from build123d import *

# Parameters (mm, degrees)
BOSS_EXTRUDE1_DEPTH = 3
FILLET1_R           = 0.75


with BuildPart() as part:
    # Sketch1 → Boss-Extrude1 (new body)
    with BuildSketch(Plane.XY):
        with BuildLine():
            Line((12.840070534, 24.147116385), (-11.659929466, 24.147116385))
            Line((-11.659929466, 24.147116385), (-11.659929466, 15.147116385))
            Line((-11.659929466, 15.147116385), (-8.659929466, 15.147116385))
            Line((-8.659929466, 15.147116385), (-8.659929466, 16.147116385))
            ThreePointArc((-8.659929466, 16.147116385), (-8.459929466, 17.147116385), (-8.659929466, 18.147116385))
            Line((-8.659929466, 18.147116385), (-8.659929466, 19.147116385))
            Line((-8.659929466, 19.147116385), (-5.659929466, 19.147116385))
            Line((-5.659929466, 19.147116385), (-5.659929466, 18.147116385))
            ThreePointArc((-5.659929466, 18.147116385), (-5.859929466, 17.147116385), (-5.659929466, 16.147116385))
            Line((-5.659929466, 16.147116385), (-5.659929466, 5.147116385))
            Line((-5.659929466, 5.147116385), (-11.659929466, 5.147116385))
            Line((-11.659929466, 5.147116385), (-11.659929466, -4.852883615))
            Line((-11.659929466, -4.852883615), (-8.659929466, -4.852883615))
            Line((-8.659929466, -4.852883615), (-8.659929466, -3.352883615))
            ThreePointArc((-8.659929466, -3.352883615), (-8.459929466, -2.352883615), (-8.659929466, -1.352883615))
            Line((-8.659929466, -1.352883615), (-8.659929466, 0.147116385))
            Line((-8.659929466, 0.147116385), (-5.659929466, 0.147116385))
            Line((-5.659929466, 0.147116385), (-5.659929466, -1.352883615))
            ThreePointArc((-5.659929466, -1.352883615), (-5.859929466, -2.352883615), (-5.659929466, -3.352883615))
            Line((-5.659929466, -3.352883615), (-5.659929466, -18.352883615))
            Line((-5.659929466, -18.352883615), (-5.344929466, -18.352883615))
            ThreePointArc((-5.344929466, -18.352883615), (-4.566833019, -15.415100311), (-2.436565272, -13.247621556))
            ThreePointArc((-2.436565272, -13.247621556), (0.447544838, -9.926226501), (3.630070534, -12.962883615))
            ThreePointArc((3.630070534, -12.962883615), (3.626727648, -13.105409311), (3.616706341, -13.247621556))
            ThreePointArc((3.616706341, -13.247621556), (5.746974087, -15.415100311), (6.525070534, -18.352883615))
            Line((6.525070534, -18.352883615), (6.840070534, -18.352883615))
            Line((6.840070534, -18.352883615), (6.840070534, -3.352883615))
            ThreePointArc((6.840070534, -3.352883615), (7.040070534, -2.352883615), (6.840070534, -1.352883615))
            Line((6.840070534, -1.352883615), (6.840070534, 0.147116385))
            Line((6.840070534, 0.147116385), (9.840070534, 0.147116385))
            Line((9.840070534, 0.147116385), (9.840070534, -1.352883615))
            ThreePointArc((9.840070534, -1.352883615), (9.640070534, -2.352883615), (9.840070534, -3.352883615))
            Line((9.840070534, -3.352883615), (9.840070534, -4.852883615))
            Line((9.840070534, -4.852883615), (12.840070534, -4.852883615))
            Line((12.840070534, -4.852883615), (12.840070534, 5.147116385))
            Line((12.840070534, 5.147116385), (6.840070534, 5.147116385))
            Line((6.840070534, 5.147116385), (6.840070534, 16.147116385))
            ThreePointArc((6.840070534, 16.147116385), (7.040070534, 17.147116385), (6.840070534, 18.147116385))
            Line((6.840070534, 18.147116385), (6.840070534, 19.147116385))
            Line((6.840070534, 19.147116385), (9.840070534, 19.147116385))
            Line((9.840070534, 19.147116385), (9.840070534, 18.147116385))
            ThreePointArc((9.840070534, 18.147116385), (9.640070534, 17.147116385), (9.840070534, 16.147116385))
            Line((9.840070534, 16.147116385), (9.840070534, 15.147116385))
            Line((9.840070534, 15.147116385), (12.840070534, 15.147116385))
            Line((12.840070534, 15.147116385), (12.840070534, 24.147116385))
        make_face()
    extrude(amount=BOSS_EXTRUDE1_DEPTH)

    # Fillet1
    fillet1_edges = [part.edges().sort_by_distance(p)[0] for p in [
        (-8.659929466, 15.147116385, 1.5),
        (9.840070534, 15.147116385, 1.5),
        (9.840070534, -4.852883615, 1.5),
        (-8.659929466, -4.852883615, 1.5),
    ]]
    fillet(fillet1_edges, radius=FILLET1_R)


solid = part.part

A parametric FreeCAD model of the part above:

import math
import FreeCAD as App
import Part
import Sketcher


def edges_at(feature, points):
    """Names of the edges that pass closest to the given points."""
    edges = feature.Shape.Edges
    near = lambda p: min(range(len(edges)), key=lambda i: edges[i].distToShape(Part.Vertex(*p))[0])
    return sorted({f"Edge{near(p) + 1}" for p in points})

doc = App.newDocument("Part")
params = doc.addObject("Spreadsheet::Sheet", "Params")
for row, (alias, value) in enumerate([
    ("sketch1_radius", "2.6 mm"),
    ("sketch1_width", "3 mm"),
    ("sketch1_height", "9 mm"),
    ("sketch1_height2", "1 mm"),
    ("sketch1_height3", "11 mm"),
    ("pad1_length", "3 mm"),
    ("fillet_radius", "0.75 mm"),
], start=1):
    params.set(f"A{row}", alias)
    params.set(f"B{row}", "=" + value)
    params.setAlias(f"B{row}", alias)

body = doc.addObject("PartDesign::Body", "Body")

sketch1 = body.newObject("Sketcher::SketchObject", "Sketch")
sketch1.AttachmentSupport = (doc.getObject("XY_Plane"), [""])
sketch1.MapMode = "FlatFace"
sketch1.addGeometry([
    Part.LineSegment(App.Vector(12.84, 24.15, 0), App.Vector(-11.66, 24.15, 0)),
    Part.LineSegment(App.Vector(-11.66, 24.15, 0), App.Vector(-11.66, 15.15, 0)),
    Part.LineSegment(App.Vector(-11.66, 15.15, 0), App.Vector(-8.66, 15.15, 0)),
    Part.LineSegment(App.Vector(-8.66, 15.15, 0), App.Vector(-8.66, 16.15, 0)),
    Part.ArcOfCircle(Part.Circle(App.Vector(-11.06, 17.15, 0), App.Vector(0, 0, 1), 2.6), math.radians(-23), math.radians(23)),
    Part.LineSegment(App.Vector(-8.66, 18.15, 0), App.Vector(-8.66, 19.15, 0)),
    Part.LineSegment(App.Vector(-8.66, 19.15, 0), App.Vector(-5.66, 19.15, 0)),
    Part.LineSegment(App.Vector(-5.66, 19.15, 0), App.Vector(-5.66, 18.15, 0)),
    Part.ArcOfCircle(Part.Circle(App.Vector(-3.26, 17.15, 0), App.Vector(0, 0, 1), 2.6), math.radians(157), math.radians(203)),
    Part.LineSegment(App.Vector(-5.66, 16.15, 0), App.Vector(-5.66, 5.15, 0)),
    Part.LineSegment(App.Vector(-5.66, 5.15, 0), App.Vector(-11.66, 5.15, 0)),
    Part.LineSegment(App.Vector(-11.66, 5.15, 0), App.Vector(-11.66, -4.85, 0)),
    Part.LineSegment(App.Vector(-11.66, -4.85, 0), App.Vector(-8.66, -4.85, 0)),
    Part.LineSegment(App.Vector(-8.66, -4.85, 0), App.Vector(-8.66, -3.35, 0)),
    Part.ArcOfCircle(Part.Circle(App.Vector(-11.06, -2.35, 0), App.Vector(0, 0, 1), 2.6), math.radians(-23), math.radians(23)),
    Part.LineSegment(App.Vector(-8.66, -1.35, 0), App.Vector(-8.66, 0.15, 0)),
    Part.LineSegment(App.Vector(-8.66, 0.15, 0), App.Vector(-5.66, 0.15, 0)),
    Part.LineSegment(App.Vector(-5.66, 0.15, 0), App.Vector(-5.66, -1.35, 0)),
    Part.ArcOfCircle(Part.Circle(App.Vector(-3.26, -2.35, 0), App.Vector(0, 0, 1), 2.6), math.radians(157), math.radians(203)),
    Part.LineSegment(App.Vector(-5.66, -3.35, 0), App.Vector(-5.66, -18.35, 0)),
    Part.LineSegment(App.Vector(-5.66, -18.35, 0), App.Vector(-5.34, -18.35, 0)),
    Part.ArcOfCircle(Part.Circle(App.Vector(0.59, -18.35, 0), App.Vector(0, 0, 1), 5.93), math.radians(121), math.radians(180)),
    Part.ArcOfCircle(Part.Circle(App.Vector(0.59, -12.96, 0), App.Vector(0, 0, 1), 3.04), math.radians(0), math.radians(185)),
    Part.ArcOfCircle(Part.Circle(App.Vector(0.59, -12.96, 0), App.Vector(0, 0, 1), 3.04), math.radians(-5.37), math.radians(0)),
    Part.ArcOfCircle(Part.Circle(App.Vector(0.59, -18.35, 0), App.Vector(0, 0, 1), 5.94), math.radians(0), math.radians(59)),
    Part.LineSegment(App.Vector(6.53, -18.35, 0), App.Vector(6.84, -18.35, 0)),
    Part.LineSegment(App.Vector(6.84, -18.35, 0), App.Vector(6.84, -3.35, 0)),
    Part.ArcOfCircle(Part.Circle(App.Vector(4.44, -2.35, 0), App.Vector(0, 0, 1), 2.6), math.radians(-23), math.radians(23)),
    Part.LineSegment(App.Vector(6.84, -1.35, 0), App.Vector(6.84, 0.15, 0)),
    Part.LineSegment(App.Vector(6.84, 0.15, 0), App.Vector(9.84, 0.15, 0)),
    Part.LineSegment(App.Vector(9.84, 0.15, 0), App.Vector(9.84, -1.35, 0)),
    Part.ArcOfCircle(Part.Circle(App.Vector(12.24, -2.35, 0), App.Vector(0, 0, 1), 2.6), math.radians(157), math.radians(203)),
    Part.LineSegment(App.Vector(9.84, -3.35, 0), App.Vector(9.84, -4.85, 0)),
    Part.LineSegment(App.Vector(9.84, -4.85, 0), App.Vector(12.84, -4.85, 0)),
    Part.LineSegment(App.Vector(12.84, -4.85, 0), App.Vector(12.84, 5.15, 0)),
    Part.LineSegment(App.Vector(12.84, 5.15, 0), App.Vector(6.84, 5.15, 0)),
    Part.LineSegment(App.Vector(6.84, 5.15, 0), App.Vector(6.84, 16.15, 0)),
    Part.ArcOfCircle(Part.Circle(App.Vector(4.44, 17.15, 0), App.Vector(0, 0, 1), 2.6), math.radians(-23), math.radians(23)),
    Part.LineSegment(App.Vector(6.84, 18.15, 0), App.Vector(6.84, 19.15, 0)),
    Part.LineSegment(App.Vector(6.84, 19.15, 0), App.Vector(9.84, 19.15, 0)),
    Part.LineSegment(App.Vector(9.84, 19.15, 0), App.Vector(9.84, 18.15, 0)),
    Part.ArcOfCircle(Part.Circle(App.Vector(12.24, 17.15, 0), App.Vector(0, 0, 1), 2.6), math.radians(157), math.radians(203)),
    Part.LineSegment(App.Vector(9.84, 16.15, 0), App.Vector(9.84, 15.15, 0)),
    Part.LineSegment(App.Vector(9.84, 15.15, 0), App.Vector(12.84, 15.15, 0)),
    Part.LineSegment(App.Vector(12.84, 15.15, 0), App.Vector(12.84, 24.15, 0)),
], False)
sketch1.addConstraint([
    Sketcher.Constraint("Coincident", 0, 2, 1, 1),
    Sketcher.Constraint("Coincident", 1, 2, 2, 1),
    Sketcher.Constraint("Coincident", 2, 2, 3, 1),
    Sketcher.Constraint("Coincident", 3, 2, 4, 1),
    Sketcher.Constraint("Coincident", 4, 2, 5, 1),
    Sketcher.Constraint("Coincident", 5, 2, 6, 1),
    Sketcher.Constraint("Coincident", 6, 2, 7, 1),
    Sketcher.Constraint("Coincident", 7, 2, 8, 1),
    Sketcher.Constraint("Coincident", 8, 2, 9, 1),
    Sketcher.Constraint("Coincident", 9, 2, 10, 1),
    Sketcher.Constraint("Coincident", 10, 2, 11, 1),
    Sketcher.Constraint("Coincident", 11, 2, 12, 1),
    Sketcher.Constraint("Coincident", 12, 2, 13, 1),
    Sketcher.Constraint("Coincident", 13, 2, 14, 1),
    Sketcher.Constraint("Coincident", 14, 2, 15, 1),
    Sketcher.Constraint("Coincident", 15, 2, 16, 1),
    Sketcher.Constraint("Coincident", 16, 2, 17, 1),
    Sketcher.Constraint("Coincident", 17, 2, 18, 1),
    Sketcher.Constraint("Coincident", 18, 2, 19, 1),
    Sketcher.Constraint("Coincident", 19, 2, 20, 1),
    Sketcher.Constraint("Coincident", 20, 2, 21, 2),
    Sketcher.Constraint("Coincident", 21, 1, 22, 2),
    Sketcher.Constraint("Tangent", 22, 1, 23, 2),
    Sketcher.Constraint("Coincident", 23, 1, 24, 2),
    Sketcher.Constraint("Coincident", 24, 1, 25, 1),
    Sketcher.Constraint("Coincident", 25, 2, 26, 1),
    Sketcher.Constraint("Coincident", 26, 2, 27, 1),
    Sketcher.Constraint("Coincident", 27, 2, 28, 1),
    Sketcher.Constraint("Coincident", 28, 2, 29, 1),
    Sketcher.Constraint("Coincident", 29, 2, 30, 1),
    Sketcher.Constraint("Coincident", 30, 2, 31, 1),
    Sketcher.Constraint("Coincident", 31, 2, 32, 1),
    Sketcher.Constraint("Coincident", 32, 2, 33, 1),
    Sketcher.Constraint("Coincident", 33, 2, 34, 1),
    Sketcher.Constraint("Coincident", 34, 2, 35, 1),
    Sketcher.Constraint("Coincident", 35, 2, 36, 1),
    Sketcher.Constraint("Coincident", 36, 2, 37, 1),
    Sketcher.Constraint("Coincident", 37, 2, 38, 1),
    Sketcher.Constraint("Coincident", 38, 2, 39, 1),
    Sketcher.Constraint("Coincident", 39, 2, 40, 1),
    Sketcher.Constraint("Coincident", 40, 2, 41, 1),
    Sketcher.Constraint("Coincident", 41, 2, 42, 1),
    Sketcher.Constraint("Coincident", 42, 2, 43, 1),
    Sketcher.Constraint("Coincident", 43, 2, 44, 1),
    Sketcher.Constraint("Coincident", 44, 2, 0, 1),
    Sketcher.Constraint("Horizontal", 0),
    Sketcher.Constraint("Vertical", 1),
    Sketcher.Constraint("Horizontal", 2),
    Sketcher.Constraint("Vertical", 3),
    Sketcher.Constraint("Vertical", 5),
    Sketcher.Constraint("Horizontal", 6),
    Sketcher.Constraint("Vertical", 7),
    Sketcher.Constraint("Vertical", 9),
    Sketcher.Constraint("Horizontal", 10),
    Sketcher.Constraint("Vertical", 11),
    Sketcher.Constraint("Horizontal", 12),
    Sketcher.Constraint("Vertical", 13),
    Sketcher.Constraint("Vertical", 15),
    Sketcher.Constraint("Horizontal", 16),
    Sketcher.Constraint("Vertical", 17),
    Sketcher.Constraint("Vertical", 19),
    Sketcher.Constraint("Horizontal", 20),
    Sketcher.Constraint("Horizontal", 25),
    Sketcher.Constraint("Vertical", 26),
    Sketcher.Constraint("Vertical", 28),
    Sketcher.Constraint("Horizontal", 29),
    Sketcher.Constraint("Vertical", 30),
    Sketcher.Constraint("Vertical", 32),
    Sketcher.Constraint("Horizontal", 33),
    Sketcher.Constraint("Vertical", 34),
    Sketcher.Constraint("Horizontal", 35),
    Sketcher.Constraint("Vertical", 36),
    Sketcher.Constraint("Vertical", 38),
    Sketcher.Constraint("Horizontal", 39),
    Sketcher.Constraint("Vertical", 40),
    Sketcher.Constraint("Vertical", 42),
    Sketcher.Constraint("Horizontal", 43),
    Sketcher.Constraint("Vertical", 44),
    Sketcher.Constraint("Coincident", 24, 3, 21, 3),
    Sketcher.Constraint("Equal", 4, 8),
    Sketcher.Constraint("Equal", 8, 14),
    Sketcher.Constraint("Equal", 14, 18),
    Sketcher.Constraint("Equal", 22, 23),
    Sketcher.Constraint("Equal", 21, 24),
    Sketcher.Constraint("Equal", 18, 27),
    Sketcher.Constraint("Equal", 27, 31),
    Sketcher.Constraint("Equal", 31, 37),
    Sketcher.Constraint("Equal", 37, 41),
    Sketcher.Constraint("Horizontal", 4, 3, 8, 3),
    Sketcher.Constraint("Horizontal", 14, 3, 18, 3),
    Sketcher.Constraint("Horizontal", 18, 3, 27, 3),
    Sketcher.Constraint("Horizontal", 27, 3, 31, 3),
    Sketcher.Constraint("Horizontal", 8, 3, 37, 3),
    Sketcher.Constraint("Horizontal", 37, 3, 41, 3),
    Sketcher.Constraint("Horizontal", 4, 2, 7, 2),
    Sketcher.Constraint("Horizontal", 3, 2, 8, 2),
    Sketcher.Constraint("Horizontal", 14, 2, 17, 2),
    Sketcher.Constraint("Horizontal", 13, 2, 18, 2),
    Sketcher.Constraint("Horizontal", 24, 3, 19, 2),
    Sketcher.Constraint("Horizontal", 23, 3, 22, 1),
    Sketcher.Constraint("Horizontal", 21, 1, 23, 1),
    Sketcher.Constraint("Horizontal", 20, 2, 24, 1),
    Sketcher.Constraint("Horizontal", 18, 2, 26, 2),
    Sketcher.Constraint("Horizontal", 17, 2, 27, 2),
    Sketcher.Constraint("Horizontal", 16, 2, 28, 2),
    Sketcher.Constraint("Horizontal", 27, 2, 30, 2),
    Sketcher.Constraint("Horizontal", 26, 2, 31, 2),
    Sketcher.Constraint("Horizontal", 12, 2, 32, 2),
    Sketcher.Constraint("Horizontal", 10, 2, 34, 2),
    Sketcher.Constraint("Horizontal", 8, 2, 36, 2),
    Sketcher.Constraint("Horizontal", 7, 2, 37, 2),
    Sketcher.Constraint("Horizontal", 6, 2, 38, 2),
    Sketcher.Constraint("Horizontal", 37, 2, 40, 2),
    Sketcher.Constraint("Horizontal", 36, 2, 41, 2),
    Sketcher.Constraint("Horizontal", 2, 2, 42, 2),
    Sketcher.Constraint("Vertical", 4, 3, 14, 3),
    Sketcher.Constraint("Vertical", 8, 3, 18, 3),
    Sketcher.Constraint("Vertical", 27, 3, 37, 3),
    Sketcher.Constraint("Vertical", 31, 3, 41, 3),
    Sketcher.Constraint("Vertical", 3, 2, 4, 2),
    Sketcher.Constraint("Vertical", 1, 2, 10, 2),
    Sketcher.Constraint("Vertical", 5, 2, 12, 2),
    Sketcher.Constraint("Vertical", 13, 2, 14, 2),
    Sketcher.Constraint("Vertical", 34, 2, 43, 2),
    Sketcher.Constraint("Equal", 2, 6),
    Sketcher.Constraint("Equal", 20, 25),
    Sketcher.Constraint("Equal", 16, 29),
    Sketcher.Constraint("Equal", 29, 33),
    Sketcher.Constraint("Equal", 3, 5),
    Sketcher.Constraint("Equal", 13, 15),
    Sketcher.Constraint("Radius", 4, 2.6),
    Sketcher.Constraint("DistanceX", 2, 1, 2, 2, 3.0),
    Sketcher.Constraint("DistanceY", 1, 2, 1, 1, 9.0),
    Sketcher.Constraint("DistanceY", 3, 1, 3, 2, 1.0),
    Sketcher.Constraint("DistanceY", 9, 2, 9, 1, 11.0),
    Sketcher.Constraint("DistanceY", 11, 2, 11, 1, 10.0),
    Sketcher.Constraint("DistanceY", 19, 2, 19, 1, 15.0),
    Sketcher.Constraint("Radius", 22, 3.04),
    Sketcher.Constraint("DistanceX", 0, 2, 0, 1, 24.5),
    Sketcher.Constraint("DistanceY", 13, 1, 13, 2, 1.5),
    Sketcher.Constraint("Radius", 21, 5.935),
    Sketcher.Constraint("DistanceY", 21, 3, 18, 3, 16.0),
    Sketcher.Constraint("DistanceY", 21, 3, 22, 3, 5.39),
    Sketcher.Constraint("DistanceX", 4, 3, -1, 1, 11.059929),
    Sketcher.Constraint("DistanceY", 21, 1, -1, 1, 13.247622),
])
sketch1.setExpression("Constraints[130]", "Params.sketch1_radius")
sketch1.setExpression("Constraints[131]", "Params.sketch1_width")
sketch1.setExpression("Constraints[132]", "Params.sketch1_height")
sketch1.setExpression("Constraints[133]", "Params.sketch1_height2")
sketch1.setExpression("Constraints[134]", "Params.sketch1_height3")
pad1 = body.newObject("PartDesign::Pad", "Pad")
pad1.Profile = sketch1
pad1.setExpression("Length", "Params.pad1_length")
doc.recompute()

fillet = body.newObject("PartDesign::Fillet", "Fillet")
fillet.Base = (pad1, edges_at(pad1, [
    (-8.66, 15.147, 1.5),
    (9.84, 15.147, 1.5),
    (9.84, -4.853, 1.5),
    (-8.66, -4.853, 1.5),
]))
fillet.setExpression("Radius", "Params.fillet_radius")

doc.recompute()
